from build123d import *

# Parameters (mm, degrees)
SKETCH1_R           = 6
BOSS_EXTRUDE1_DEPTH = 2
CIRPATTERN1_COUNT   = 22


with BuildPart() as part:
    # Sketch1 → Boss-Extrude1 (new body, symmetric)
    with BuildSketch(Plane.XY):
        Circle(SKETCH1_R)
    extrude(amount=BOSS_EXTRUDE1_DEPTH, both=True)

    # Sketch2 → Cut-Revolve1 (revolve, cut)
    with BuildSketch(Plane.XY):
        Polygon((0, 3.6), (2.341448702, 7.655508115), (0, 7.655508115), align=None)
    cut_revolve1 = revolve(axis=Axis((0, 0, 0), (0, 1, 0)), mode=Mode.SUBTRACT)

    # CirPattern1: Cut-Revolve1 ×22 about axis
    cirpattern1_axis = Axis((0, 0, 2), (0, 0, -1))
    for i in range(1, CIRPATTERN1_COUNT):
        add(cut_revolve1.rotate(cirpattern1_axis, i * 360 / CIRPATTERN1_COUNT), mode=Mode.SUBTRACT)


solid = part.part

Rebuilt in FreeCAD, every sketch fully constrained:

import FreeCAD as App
import Part
import Sketcher
Q = App.Units.Quantity

doc = App.newDocument("Part")
params = doc.addObject("Spreadsheet::Sheet", "Params")
for row, (alias, value) in enumerate([
    ("sketch1_diameter", "12 mm"),
    ("pad1_length", "4 mm"),
    ("groove_angle", "360 deg"),
], start=1):
    params.set(f"A{row}", alias)
    params.set(f"B{row}", "=" + value)
    params.setAlias(f"B{row}", alias)

body = doc.addObject("PartDesign::Body", "Body")

sketch1 = doc.addObject("Sketcher::SketchObject", "Sketch")
body.addObject(sketch1)
sketch1.AttachmentSupport = (doc.XY_Plane, [""])
sketch1.MapMode = "FlatFace"
sketch1.addGeometry(Part.Circle(App.Vector(0, 0, 0), App.Vector(0, 0, 1), 6), False)
sketch1.addConstraint(Sketcher.Constraint("Coincident", 0, 3, -1, 1))
sketch1.addConstraint(Sketcher.Constraint("Diameter", 0, 12.0))
sketch1.setExpression("Constraints[1]", "Params.sketch1_diameter")
pad1 = doc.addObject("PartDesign::Pad", "Pad")
body.addObject(pad1)
pad1.Profile = sketch1
pad1.setExpression("Length", "Params.pad1_length")
pad1.Midplane = True

sketch2 = doc.addObject("Sketcher::SketchObject", "Sketch001")
body.addObject(sketch2)
sketch2.AttachmentSupport = (doc.XY_Plane, [""])
sketch2.MapMode = "FlatFace"
sketch2.addGeometry(Part.LineSegment(App.Vector(0, 3.6, 0), App.Vector(2.3, 7.7, 0)), False)
sketch2.addGeometry(Part.LineSegment(App.Vector(2.3, 7.7, 0), App.Vector(0, 7.7, 0)), False)
sketch2.addGeometry(Part.LineSegment(App.Vector(0, 7.7, 0), App.Vector(0, 3.6, 0)), False)
sketch2.addConstraint(Sketcher.Constraint("Coincident", 0, 2, 1, 1))
sketch2.addConstraint(Sketcher.Constraint("Coincident", 1, 2, 2, 1))
sketch2.addConstraint(Sketcher.Constraint("Coincident", 2, 2, 0, 1))
sketch2.addConstraint(Sketcher.Constraint("Horizontal", 1))
sketch2.addConstraint(Sketcher.Constraint("Vertical", 2))
sketch2.addConstraint(Sketcher.Constraint("PointOnObject", 1, 2, -2))
sketch2.addConstraint(Sketcher.Constraint("Angle", 0, Q("60 deg")))
sketch2.addConstraint(Sketcher.Constraint("DistanceY", -1, 1, 2, 2, 3.6))
sketch2.addConstraint(Sketcher.Constraint("DistanceX", 1, 2, 1, 1, 2.341449))
groove = doc.addObject("PartDesign::Groove", "Groove")
body.addObject(groove)
groove.Profile = sketch2
groove.ReferenceAxis = (sketch2, ["V_Axis"])
groove.setExpression("Angle", "Params.groove_angle")
doc.recompute()

polarpattern = doc.addObject("PartDesign::PolarPattern", "PolarPattern")
body.addObject(polarpattern)
polarpattern.Originals = [groove]
polarpattern.Axis = (doc.Z_Axis, [""])
polarpattern.Angle = 360
polarpattern.Occurrences = 22
body.Tip = polarpattern

doc.recompute()
